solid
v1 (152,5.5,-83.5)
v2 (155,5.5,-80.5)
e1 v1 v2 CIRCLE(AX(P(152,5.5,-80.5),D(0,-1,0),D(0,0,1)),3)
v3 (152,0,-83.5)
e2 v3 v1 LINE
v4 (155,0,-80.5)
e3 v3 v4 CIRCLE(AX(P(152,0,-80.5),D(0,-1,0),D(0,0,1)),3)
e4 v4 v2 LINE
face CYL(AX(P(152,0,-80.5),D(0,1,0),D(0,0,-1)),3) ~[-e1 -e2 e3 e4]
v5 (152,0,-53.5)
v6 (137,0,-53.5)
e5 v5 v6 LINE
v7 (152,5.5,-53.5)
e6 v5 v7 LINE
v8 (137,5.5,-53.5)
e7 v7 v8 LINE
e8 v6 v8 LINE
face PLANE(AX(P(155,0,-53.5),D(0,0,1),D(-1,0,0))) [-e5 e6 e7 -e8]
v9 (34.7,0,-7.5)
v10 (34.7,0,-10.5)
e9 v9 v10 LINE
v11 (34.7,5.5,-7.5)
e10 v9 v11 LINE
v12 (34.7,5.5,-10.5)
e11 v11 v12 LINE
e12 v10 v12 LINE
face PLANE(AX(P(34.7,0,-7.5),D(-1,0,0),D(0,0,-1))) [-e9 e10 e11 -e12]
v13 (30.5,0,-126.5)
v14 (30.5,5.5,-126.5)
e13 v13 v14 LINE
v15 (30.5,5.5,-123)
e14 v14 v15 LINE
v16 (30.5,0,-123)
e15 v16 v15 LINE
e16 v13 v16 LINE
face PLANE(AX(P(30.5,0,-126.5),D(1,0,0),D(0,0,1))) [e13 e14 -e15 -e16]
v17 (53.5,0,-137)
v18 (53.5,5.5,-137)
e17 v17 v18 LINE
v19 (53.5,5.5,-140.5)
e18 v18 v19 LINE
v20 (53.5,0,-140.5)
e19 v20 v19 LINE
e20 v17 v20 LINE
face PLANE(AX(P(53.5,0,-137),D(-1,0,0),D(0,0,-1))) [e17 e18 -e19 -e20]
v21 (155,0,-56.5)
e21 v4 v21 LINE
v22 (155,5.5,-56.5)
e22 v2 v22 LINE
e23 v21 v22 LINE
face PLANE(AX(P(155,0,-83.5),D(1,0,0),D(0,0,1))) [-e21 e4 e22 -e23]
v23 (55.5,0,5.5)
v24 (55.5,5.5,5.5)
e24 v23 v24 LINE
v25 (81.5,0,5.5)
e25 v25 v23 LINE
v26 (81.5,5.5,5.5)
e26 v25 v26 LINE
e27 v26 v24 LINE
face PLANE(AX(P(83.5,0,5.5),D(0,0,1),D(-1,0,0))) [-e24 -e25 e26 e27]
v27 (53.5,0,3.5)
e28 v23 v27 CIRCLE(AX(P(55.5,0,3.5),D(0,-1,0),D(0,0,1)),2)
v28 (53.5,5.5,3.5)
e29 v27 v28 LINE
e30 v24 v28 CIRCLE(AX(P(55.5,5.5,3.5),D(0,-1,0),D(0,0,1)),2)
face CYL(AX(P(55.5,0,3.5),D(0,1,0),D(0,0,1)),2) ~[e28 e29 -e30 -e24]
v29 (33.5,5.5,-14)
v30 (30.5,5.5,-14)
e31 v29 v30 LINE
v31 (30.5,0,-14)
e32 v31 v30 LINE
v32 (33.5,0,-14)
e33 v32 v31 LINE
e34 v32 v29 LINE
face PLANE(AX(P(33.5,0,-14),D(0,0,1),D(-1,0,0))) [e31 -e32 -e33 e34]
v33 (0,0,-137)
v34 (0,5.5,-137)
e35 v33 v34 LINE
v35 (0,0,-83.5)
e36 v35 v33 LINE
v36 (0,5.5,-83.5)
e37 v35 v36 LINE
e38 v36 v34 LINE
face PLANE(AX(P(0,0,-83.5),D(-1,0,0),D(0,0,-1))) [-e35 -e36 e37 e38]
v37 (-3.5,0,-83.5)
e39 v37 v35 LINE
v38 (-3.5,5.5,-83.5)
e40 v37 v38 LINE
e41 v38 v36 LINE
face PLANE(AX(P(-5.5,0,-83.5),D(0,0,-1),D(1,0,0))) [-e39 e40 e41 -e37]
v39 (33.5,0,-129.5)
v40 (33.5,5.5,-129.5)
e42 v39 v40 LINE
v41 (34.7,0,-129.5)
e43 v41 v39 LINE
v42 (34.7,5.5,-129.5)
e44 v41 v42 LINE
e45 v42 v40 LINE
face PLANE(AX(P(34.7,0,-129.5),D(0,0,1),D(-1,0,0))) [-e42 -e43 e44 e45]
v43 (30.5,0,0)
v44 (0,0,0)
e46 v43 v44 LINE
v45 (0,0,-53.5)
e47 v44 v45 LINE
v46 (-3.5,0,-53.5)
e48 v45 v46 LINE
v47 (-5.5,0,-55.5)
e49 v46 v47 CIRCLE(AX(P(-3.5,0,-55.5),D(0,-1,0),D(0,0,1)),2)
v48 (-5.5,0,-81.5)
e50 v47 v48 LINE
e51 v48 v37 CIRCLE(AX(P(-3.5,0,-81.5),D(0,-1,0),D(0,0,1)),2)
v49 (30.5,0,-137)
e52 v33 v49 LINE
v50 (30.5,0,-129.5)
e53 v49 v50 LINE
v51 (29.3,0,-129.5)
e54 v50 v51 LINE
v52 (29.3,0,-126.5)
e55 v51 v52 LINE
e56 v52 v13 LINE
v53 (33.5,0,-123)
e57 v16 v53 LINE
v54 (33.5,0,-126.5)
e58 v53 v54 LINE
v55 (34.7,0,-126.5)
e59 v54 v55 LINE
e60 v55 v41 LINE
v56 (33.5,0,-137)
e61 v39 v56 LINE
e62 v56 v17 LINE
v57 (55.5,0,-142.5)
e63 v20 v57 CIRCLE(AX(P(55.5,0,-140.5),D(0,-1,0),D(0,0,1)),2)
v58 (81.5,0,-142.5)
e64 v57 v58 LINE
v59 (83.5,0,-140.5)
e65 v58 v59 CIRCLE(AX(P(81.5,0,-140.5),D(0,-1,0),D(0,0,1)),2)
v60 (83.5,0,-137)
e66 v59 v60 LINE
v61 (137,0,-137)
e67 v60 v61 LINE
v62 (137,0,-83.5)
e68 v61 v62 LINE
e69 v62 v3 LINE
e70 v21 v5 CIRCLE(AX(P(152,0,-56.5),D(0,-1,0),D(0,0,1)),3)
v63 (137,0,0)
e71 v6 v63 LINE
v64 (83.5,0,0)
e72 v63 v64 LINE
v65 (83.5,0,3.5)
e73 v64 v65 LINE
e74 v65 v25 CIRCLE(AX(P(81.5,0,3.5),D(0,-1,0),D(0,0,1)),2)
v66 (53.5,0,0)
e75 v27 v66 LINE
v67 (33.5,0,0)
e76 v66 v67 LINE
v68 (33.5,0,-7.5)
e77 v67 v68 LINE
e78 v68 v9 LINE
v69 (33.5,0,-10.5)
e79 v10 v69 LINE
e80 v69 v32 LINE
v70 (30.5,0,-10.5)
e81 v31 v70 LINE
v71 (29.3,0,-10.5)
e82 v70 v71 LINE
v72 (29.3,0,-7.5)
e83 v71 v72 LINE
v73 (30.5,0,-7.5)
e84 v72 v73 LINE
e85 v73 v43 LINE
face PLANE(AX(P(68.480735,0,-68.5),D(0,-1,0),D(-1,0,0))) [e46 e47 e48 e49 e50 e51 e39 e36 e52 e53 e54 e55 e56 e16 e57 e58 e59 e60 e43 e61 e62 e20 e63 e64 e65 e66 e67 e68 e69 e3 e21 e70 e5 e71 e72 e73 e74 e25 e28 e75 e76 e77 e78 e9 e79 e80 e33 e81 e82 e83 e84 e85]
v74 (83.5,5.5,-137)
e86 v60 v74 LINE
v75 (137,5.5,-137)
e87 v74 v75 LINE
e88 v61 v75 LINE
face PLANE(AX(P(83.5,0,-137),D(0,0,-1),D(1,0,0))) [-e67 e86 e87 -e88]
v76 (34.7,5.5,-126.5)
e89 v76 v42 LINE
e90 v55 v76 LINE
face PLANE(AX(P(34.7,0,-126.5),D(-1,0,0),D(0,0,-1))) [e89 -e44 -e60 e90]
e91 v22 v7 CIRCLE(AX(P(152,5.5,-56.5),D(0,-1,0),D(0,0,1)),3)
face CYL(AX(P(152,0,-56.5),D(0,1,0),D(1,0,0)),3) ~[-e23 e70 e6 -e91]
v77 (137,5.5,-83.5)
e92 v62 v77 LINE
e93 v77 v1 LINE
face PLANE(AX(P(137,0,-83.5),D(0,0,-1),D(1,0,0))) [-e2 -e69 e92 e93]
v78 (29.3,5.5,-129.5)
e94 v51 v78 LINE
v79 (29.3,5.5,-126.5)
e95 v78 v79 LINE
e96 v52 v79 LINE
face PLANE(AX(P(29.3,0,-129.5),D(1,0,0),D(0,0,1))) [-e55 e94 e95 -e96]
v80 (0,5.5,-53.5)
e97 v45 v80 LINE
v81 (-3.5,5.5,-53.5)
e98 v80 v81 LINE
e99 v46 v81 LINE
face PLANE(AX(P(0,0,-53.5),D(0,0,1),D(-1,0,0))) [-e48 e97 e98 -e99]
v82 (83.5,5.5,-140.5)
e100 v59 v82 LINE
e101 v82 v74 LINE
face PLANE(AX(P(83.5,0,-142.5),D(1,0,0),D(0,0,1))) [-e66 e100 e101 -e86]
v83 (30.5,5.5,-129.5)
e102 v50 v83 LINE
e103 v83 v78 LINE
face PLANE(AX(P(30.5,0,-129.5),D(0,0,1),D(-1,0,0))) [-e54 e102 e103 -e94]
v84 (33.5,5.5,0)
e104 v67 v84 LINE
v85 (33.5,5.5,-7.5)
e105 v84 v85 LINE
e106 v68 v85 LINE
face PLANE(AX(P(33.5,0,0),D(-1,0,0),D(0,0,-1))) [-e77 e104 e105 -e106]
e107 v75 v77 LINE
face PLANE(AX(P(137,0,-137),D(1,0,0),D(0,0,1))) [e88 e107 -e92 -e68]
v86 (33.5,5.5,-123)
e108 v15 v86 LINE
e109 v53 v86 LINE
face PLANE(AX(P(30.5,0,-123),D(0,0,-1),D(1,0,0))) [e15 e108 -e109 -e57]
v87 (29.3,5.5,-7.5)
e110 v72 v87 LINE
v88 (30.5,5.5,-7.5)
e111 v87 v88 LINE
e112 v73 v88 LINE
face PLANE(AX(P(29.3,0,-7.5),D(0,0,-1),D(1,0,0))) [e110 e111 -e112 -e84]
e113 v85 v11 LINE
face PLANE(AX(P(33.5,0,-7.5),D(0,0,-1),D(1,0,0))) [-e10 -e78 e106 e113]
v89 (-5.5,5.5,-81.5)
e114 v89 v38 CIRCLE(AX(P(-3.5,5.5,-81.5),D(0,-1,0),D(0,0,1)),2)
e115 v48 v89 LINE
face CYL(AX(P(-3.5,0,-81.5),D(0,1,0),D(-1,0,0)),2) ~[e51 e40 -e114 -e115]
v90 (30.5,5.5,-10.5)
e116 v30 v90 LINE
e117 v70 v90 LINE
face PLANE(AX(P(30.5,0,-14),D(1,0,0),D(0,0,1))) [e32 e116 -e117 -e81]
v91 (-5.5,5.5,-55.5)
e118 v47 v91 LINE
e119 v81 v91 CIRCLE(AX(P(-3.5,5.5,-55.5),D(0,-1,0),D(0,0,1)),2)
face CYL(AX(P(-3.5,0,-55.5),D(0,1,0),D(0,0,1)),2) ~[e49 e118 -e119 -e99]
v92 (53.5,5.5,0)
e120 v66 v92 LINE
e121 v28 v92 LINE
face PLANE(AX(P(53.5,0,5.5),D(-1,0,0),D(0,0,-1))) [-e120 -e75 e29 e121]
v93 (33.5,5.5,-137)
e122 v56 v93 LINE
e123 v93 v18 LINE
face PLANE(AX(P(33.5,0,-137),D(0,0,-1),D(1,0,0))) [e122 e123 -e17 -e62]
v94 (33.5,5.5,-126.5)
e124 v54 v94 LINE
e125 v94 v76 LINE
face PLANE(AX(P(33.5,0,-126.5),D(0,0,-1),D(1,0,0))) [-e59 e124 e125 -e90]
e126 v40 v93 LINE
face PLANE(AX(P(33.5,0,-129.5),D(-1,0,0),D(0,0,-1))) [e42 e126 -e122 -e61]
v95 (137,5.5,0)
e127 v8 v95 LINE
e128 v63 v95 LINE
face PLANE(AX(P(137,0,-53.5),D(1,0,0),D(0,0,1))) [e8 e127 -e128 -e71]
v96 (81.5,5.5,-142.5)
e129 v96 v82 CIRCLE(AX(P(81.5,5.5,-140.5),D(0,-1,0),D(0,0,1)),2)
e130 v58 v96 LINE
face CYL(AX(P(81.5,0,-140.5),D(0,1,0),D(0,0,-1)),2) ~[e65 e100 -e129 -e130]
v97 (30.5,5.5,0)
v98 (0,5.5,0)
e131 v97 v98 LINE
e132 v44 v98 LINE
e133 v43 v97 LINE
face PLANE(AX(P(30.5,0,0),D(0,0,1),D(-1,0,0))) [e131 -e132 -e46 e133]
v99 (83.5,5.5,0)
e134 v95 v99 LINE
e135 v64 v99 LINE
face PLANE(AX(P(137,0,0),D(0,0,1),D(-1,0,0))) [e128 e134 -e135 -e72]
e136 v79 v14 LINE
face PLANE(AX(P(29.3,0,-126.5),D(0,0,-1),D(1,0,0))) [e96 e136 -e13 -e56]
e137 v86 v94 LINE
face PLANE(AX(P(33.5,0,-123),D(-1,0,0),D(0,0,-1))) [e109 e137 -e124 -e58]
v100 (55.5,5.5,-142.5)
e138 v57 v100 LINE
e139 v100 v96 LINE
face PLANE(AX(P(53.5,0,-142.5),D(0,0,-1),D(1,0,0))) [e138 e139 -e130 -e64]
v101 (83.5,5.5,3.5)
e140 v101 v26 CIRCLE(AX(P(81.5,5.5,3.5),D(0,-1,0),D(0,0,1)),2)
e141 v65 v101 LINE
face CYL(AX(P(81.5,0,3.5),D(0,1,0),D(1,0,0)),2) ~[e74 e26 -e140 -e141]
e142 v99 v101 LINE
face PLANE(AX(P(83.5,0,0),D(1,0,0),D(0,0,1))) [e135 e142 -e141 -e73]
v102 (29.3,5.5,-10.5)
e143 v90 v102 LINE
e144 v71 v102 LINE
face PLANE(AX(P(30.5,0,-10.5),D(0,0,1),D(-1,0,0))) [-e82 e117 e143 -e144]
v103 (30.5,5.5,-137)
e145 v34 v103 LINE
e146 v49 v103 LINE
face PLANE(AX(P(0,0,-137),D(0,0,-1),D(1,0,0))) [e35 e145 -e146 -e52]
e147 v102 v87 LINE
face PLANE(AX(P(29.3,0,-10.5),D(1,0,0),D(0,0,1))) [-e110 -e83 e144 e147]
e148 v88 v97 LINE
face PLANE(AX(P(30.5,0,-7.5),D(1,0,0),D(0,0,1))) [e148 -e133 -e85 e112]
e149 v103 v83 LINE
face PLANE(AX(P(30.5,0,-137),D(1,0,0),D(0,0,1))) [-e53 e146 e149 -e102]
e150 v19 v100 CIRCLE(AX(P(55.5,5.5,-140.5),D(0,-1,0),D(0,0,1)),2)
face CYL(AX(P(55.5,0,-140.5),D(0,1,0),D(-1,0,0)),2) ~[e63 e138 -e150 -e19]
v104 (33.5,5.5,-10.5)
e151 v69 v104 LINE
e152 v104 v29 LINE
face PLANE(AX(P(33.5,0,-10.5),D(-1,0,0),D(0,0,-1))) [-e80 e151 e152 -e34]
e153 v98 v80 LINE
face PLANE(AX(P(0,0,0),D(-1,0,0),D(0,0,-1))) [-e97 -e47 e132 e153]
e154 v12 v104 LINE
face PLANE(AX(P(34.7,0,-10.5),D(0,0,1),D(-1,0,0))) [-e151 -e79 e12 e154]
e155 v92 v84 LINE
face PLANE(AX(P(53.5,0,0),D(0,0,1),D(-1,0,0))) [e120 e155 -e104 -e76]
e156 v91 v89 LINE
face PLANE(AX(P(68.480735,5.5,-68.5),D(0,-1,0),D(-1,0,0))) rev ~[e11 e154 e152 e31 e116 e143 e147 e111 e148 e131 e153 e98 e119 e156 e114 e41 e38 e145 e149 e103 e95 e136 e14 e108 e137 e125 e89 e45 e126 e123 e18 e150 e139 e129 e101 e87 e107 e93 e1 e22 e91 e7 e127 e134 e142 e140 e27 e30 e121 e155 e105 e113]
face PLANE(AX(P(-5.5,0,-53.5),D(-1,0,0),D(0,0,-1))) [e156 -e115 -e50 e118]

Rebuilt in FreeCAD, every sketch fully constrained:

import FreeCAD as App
import Part
import Sketcher
Q = App.Units.Quantity


def edges_at(feature, points):
    """Names of the edges that pass closest to the given points."""
    edges = feature.Shape.Edges
    near = lambda p: min(range(len(edges)), key=lambda i: edges[i].distToShape(Part.Vertex(*p))[0])
    return sorted({f"Edge{near(p) + 1}" for p in points})

doc = App.newDocument("Part")
params = doc.addObject("Spreadsheet::Sheet", "Params")
for row, (alias, value) in enumerate([
    ("sketch1_width", "3 mm"),
    ("sketch1_width2", "20 mm"),
    ("sketch1_width3", "30 mm"),
    ("sketch1_width4", "18 mm"),
    ("sketch1_width5", "5.5 mm"),
    ("pad1_length", "5.5 mm"),
    ("fillet_radius", "2 mm"),
    ("fillet2_radius", "3 mm"),
], start=1):
    params.set(f"A{row}", alias)
    params.set(f"B{row}", "=" + value)
    params.setAlias(f"B{row}", alias)

body = doc.addObject("PartDesign::Body", "Body")

sketch1 = body.newObject("Sketcher::SketchObject", "Sketch")
sketch1.AttachmentSupport = (doc.getObject("XZ_Plane"), [""])
sketch1.MapMode = "FlatFace"
sketch1.addGeometry([
    Part.LineSegment(App.Vector(0, -137, 0), App.Vector(0, -83.5, 0)),
    Part.LineSegment(App.Vector(0, -83.5, 0), App.Vector(-5.5, -83.5, 0)),
    Part.LineSegment(App.Vector(-5.5, -83.5, 0), App.Vector(-5.5, -53.5, 0)),
    Part.LineSegment(App.Vector(-5.5, -53.5, 0), App.Vector(0, -53.5, 0)),
    Part.LineSegment(App.Vector(0, -53.5, 0), App.Vector(0, 0, 0)),
    Part.LineSegment(App.Vector(0, 0, 0), App.Vector(30.5, 0, 0)),
    Part.LineSegment(App.Vector(30.5, 0, 0), App.Vector(30.5, -7.5, 0)),
    Part.LineSegment(App.Vector(30.5, -7.5, 0), App.Vector(29.3, -7.5, 0)),
    Part.LineSegment(App.Vector(29.3, -7.5, 0), App.Vector(29.3, -10.5, 0)),
    Part.LineSegment(App.Vector(29.3, -10.5, 0), App.Vector(30.5, -10.5, 0)),
    Part.LineSegment(App.Vector(30.5, -10.5, 0), App.Vector(30.5, -14, 0)),
    Part.LineSegment(App.Vector(30.5, -14, 0), App.Vector(33.5, -14, 0)),
    Part.LineSegment(App.Vector(33.5, -14, 0), App.Vector(33.5, -10.5, 0)),
    Part.LineSegment(App.Vector(33.5, -10.5, 0), App.Vector(34.7, -10.5, 0)),
    Part.LineSegment(App.Vector(34.7, -10.5, 0), App.Vector(34.7, -7.5, 0)),
    Part.LineSegment(App.Vector(34.7, -7.5, 0), App.Vector(33.5, -7.5, 0)),
    Part.LineSegment(App.Vector(33.5, -7.5, 0), App.Vector(33.5, 0, 0)),
    Part.LineSegment(App.Vector(33.5, 0, 0), App.Vector(53.5, 0, 0)),
    Part.LineSegment(App.Vector(53.5, 0, 0), App.Vector(53.5, 5.5, 0)),
    Part.LineSegment(App.Vector(53.5, 5.5, 0), App.Vector(83.5, 5.5, 0)),
    Part.LineSegment(App.Vector(83.5, 5.5, 0), App.Vector(83.5, 0, 0)),
    Part.LineSegment(App.Vector(83.5, 0, 0), App.Vector(137, 0, 0)),
    Part.LineSegment(App.Vector(137, 0, 0), App.Vector(137, -53.5, 0)),
    Part.LineSegment(App.Vector(137, -53.5, 0), App.Vector(155, -53.5, 0)),
    Part.LineSegment(App.Vector(155, -53.5, 0), App.Vector(155, -83.5, 0)),
    Part.LineSegment(App.Vector(155, -83.5, 0), App.Vector(137, -83.5, 0)),
    Part.LineSegment(App.Vector(137, -83.5, 0), App.Vector(137, -137, 0)),
    Part.LineSegment(App.Vector(137, -137, 0), App.Vector(83.5, -137, 0)),
    Part.LineSegment(App.Vector(83.5, -137, 0), App.Vector(83.5, -142.5, 0)),
    Part.LineSegment(App.Vector(83.5, -142.5, 0), App.Vector(53.5, -142.5, 0)),
    Part.LineSegment(App.Vector(53.5, -142.5, 0), App.Vector(53.5, -137, 0)),
    Part.LineSegment(App.Vector(53.5, -137, 0), App.Vector(33.5, -137, 0)),
    Part.LineSegment(App.Vector(33.5, -137, 0), App.Vector(33.5, -129.5, 0)),
    Part.LineSegment(App.Vector(33.5, -129.5, 0), App.Vector(34.7, -129.5, 0)),
    Part.LineSegment(App.Vector(34.7, -129.5, 0), App.Vector(34.7, -126.5, 0)),
    Part.LineSegment(App.Vector(34.7, -126.5, 0), App.Vector(33.5, -126.5, 0)),
    Part.LineSegment(App.Vector(33.5, -126.5, 0), App.Vector(33.5, -123, 0)),
    Part.LineSegment(App.Vector(33.5, -123, 0), App.Vector(30.5, -123, 0)),
    Part.LineSegment(App.Vector(30.5, -123, 0), App.Vector(30.5, -126.5, 0)),
    Part.LineSegment(App.Vector(30.5, -126.5, 0), App.Vector(29.3, -126.5, 0)),
    Part.LineSegment(App.Vector(29.3, -126.5, 0), App.Vector(29.3, -129.5, 0)),
    Part.LineSegment(App.Vector(29.3, -129.5, 0), App.Vector(30.5, -129.5, 0)),
    Part.LineSegment(App.Vector(30.5, -129.5, 0), App.Vector(30.5, -137, 0)),
    Part.LineSegment(App.Vector(30.5, -137, 0), App.Vector(0, -137, 0)),
], False)
sketch1.addConstraint([
    Sketcher.Constraint("Coincident", 0, 2, 1, 1),
    Sketcher.Constraint("Coincident", 1, 2, 2, 1),
    Sketcher.Constraint("Coincident", 2, 2, 3, 1),
    Sketcher.Constraint("Coincident", 3, 2, 4, 1),
    Sketcher.Constraint("Coincident", 4, 2, 5, 1),
    Sketcher.Constraint("Coincident", 5, 2, 6, 1),
    Sketcher.Constraint("Coincident", 6, 2, 7, 1),
    Sketcher.Constraint("Coincident", 7, 2, 8, 1),
    Sketcher.Constraint("Coincident", 8, 2, 9, 1),
    Sketcher.Constraint("Coincident", 9, 2, 10, 1),
    Sketcher.Constraint("Coincident", 10, 2, 11, 1),
    Sketcher.Constraint("Coincident", 11, 2, 12, 1),
    Sketcher.Constraint("Coincident", 12, 2, 13, 1),
    Sketcher.Constraint("Coincident", 13, 2, 14, 1),
    Sketcher.Constraint("Coincident", 14, 2, 15, 1),
    Sketcher.Constraint("Coincident", 15, 2, 16, 1),
    Sketcher.Constraint("Coincident", 16, 2, 17, 1),
    Sketcher.Constraint("Coincident", 17, 2, 18, 1),
    Sketcher.Constraint("Coincident", 18, 2, 19, 1),
    Sketcher.Constraint("Coincident", 19, 2, 20, 1),
    Sketcher.Constraint("Coincident", 20, 2, 21, 1),
    Sketcher.Constraint("Coincident", 21, 2, 22, 1),
    Sketcher.Constraint("Coincident", 22, 2, 23, 1),
    Sketcher.Constraint("Coincident", 23, 2, 24, 1),
    Sketcher.Constraint("Coincident", 24, 2, 25, 1),
    Sketcher.Constraint("Coincident", 25, 2, 26, 1),
    Sketcher.Constraint("Coincident", 26, 2, 27, 1),
    Sketcher.Constraint("Coincident", 27, 2, 28, 1),
    Sketcher.Constraint("Coincident", 28, 2, 29, 1),
    Sketcher.Constraint("Coincident", 29, 2, 30, 1),
    Sketcher.Constraint("Coincident", 30, 2, 31, 1),
    Sketcher.Constraint("Coincident", 31, 2, 32, 1),
    Sketcher.Constraint("Coincident", 32, 2, 33, 1),
    Sketcher.Constraint("Coincident", 33, 2, 34, 1),
    Sketcher.Constraint("Coincident", 34, 2, 35, 1),
    Sketcher.Constraint("Coincident", 35, 2, 36, 1),
    Sketcher.Constraint("Coincident", 36, 2, 37, 1),
    Sketcher.Constraint("Coincident", 37, 2, 38, 1),
    Sketcher.Constraint("Coincident", 38, 2, 39, 1),
    Sketcher.Constraint("Coincident", 39, 2, 40, 1),
    Sketcher.Constraint("Coincident", 40, 2, 41, 1),
    Sketcher.Constraint("Coincident", 41, 2, 42, 1),
    Sketcher.Constraint("Coincident", 42, 2, 43, 1),
    Sketcher.Constraint("Coincident", 43, 2, 0, 1),
    Sketcher.Constraint("Vertical", 0),
    Sketcher.Constraint("Horizontal", 1),
    Sketcher.Constraint("Vertical", 2),
    Sketcher.Constraint("Horizontal", 3),
    Sketcher.Constraint("Vertical", 4),
    Sketcher.Constraint("Horizontal", 5),
    Sketcher.Constraint("Vertical", 6),
    Sketcher.Constraint("Horizontal", 7),
    Sketcher.Constraint("Vertical", 8),
    Sketcher.Constraint("Horizontal", 9),
    Sketcher.Constraint("Vertical", 10),
    Sketcher.Constraint("Horizontal", 11),
    Sketcher.Constraint("Vertical", 12),
    Sketcher.Constraint("Horizontal", 13),
    Sketcher.Constraint("Vertical", 14),
    Sketcher.Constraint("Horizontal", 15),
    Sketcher.Constraint("Vertical", 16),
    Sketcher.Constraint("Horizontal", 17),
    Sketcher.Constraint("Vertical", 18),
    Sketcher.Constraint("Horizontal", 19),
    Sketcher.Constraint("Vertical", 20),
    Sketcher.Constraint("Horizontal", 21),
    Sketcher.Constraint("Vertical", 22),
    Sketcher.Constraint("Horizontal", 23),
    Sketcher.Constraint("Vertical", 24),
    Sketcher.Constraint("Horizontal", 25),
    Sketcher.Constraint("Vertical", 26),
    Sketcher.Constraint("Horizontal", 27),
    Sketcher.Constraint("Vertical", 28),
    Sketcher.Constraint("Horizontal", 29),
    Sketcher.Constraint("Vertical", 30),
    Sketcher.Constraint("Horizontal", 31),
    Sketcher.Constraint("Vertical", 32),
    Sketcher.Constraint("Horizontal", 33),
    Sketcher.Constraint("Vertical", 34),
    Sketcher.Constraint("Horizontal", 35),
    Sketcher.Constraint("Vertical", 36),
    Sketcher.Constraint("Horizontal", 37),
    Sketcher.Constraint("Vertical", 38),
    Sketcher.Constraint("Horizontal", 39),
    Sketcher.Constraint("Vertical", 40),
    Sketcher.Constraint("Horizontal", 41),
    Sketcher.Constraint("Vertical", 42),
    Sketcher.Constraint("Horizontal", 43),
    Sketcher.Constraint("Coincident", 4, 2, -1, 1),
    Sketcher.Constraint("PointOnObject", 0, 2, -2),
    Sketcher.Constraint("PointOnObject", 16, 2, -1),
    Sketcher.Constraint("PointOnObject", 20, 2, -1),
    Sketcher.Constraint("Horizontal", 9, 2, 12, 2),
    Sketcher.Constraint("Horizontal", 7, 2, 14, 2),
    Sketcher.Constraint("Horizontal", 3, 2, 22, 2),
    Sketcher.Constraint("Horizontal", 1, 2, 24, 2),
    Sketcher.Constraint("Horizontal", 27, 2, 30, 2),
    Sketcher.Constraint("Horizontal", 35, 2, 38, 2),
    Sketcher.Constraint("Horizontal", 33, 2, 40, 2),
    Sketcher.Constraint("Horizontal", 31, 2, 42, 2),
    Sketcher.Constraint("Vertical", 6, 2, 9, 2),
    Sketcher.Constraint("Vertical", 12, 2, 15, 2),
    Sketcher.Constraint("Vertical", 22, 2, 25, 2),
    Sketcher.Constraint("Vertical", 20, 2, 27, 2),
    Sketcher.Constraint("Vertical", 18, 2, 29, 2),
    Sketcher.Constraint("Vertical", 16, 2, 31, 2),
    Sketcher.Constraint("Vertical", 14, 2, 33, 2),
    Sketcher.Constraint("Vertical", 32, 2, 35, 2),
    Sketcher.Constraint("Vertical", 10, 2, 37, 2),
    Sketcher.Constraint("Vertical", 8, 2, 39, 2),
    Sketcher.Constraint("Vertical", 38, 2, 41, 2),
    Sketcher.Constraint("Equal", 9, 13),
    Sketcher.Constraint("Equal", 27, 0),
    Sketcher.Constraint("Equal", 29, 2),
    Sketcher.Constraint("Equal", 0, 4),
    Sketcher.Constraint("Equal", 37, 8),
    Sketcher.Constraint("Equal", 3, 18),
    Sketcher.Constraint("Equal", 20, 28),
    Sketcher.Constraint("Equal", 16, 32),
    Sketcher.Constraint("Equal", 14, 34),
    Sketcher.Constraint("Equal", 12, 36),
    Sketcher.Constraint("DistanceX", 11, 1, 11, 2, Q("3 mm")),
    Sketcher.Constraint("DistanceX", 17, 1, 17, 2, Q("20 mm")),
    Sketcher.Constraint("DistanceX", 19, 1, 19, 2, Q("30 mm")),
    Sketcher.Constraint("DistanceX", 23, 1, 23, 2, Q("18 mm")),
    Sketcher.Constraint("DistanceX", 1, 2, 1, 1, Q("5.5 mm")),
    Sketcher.Constraint("DistanceX", 5, 1, 5, 2, Q("30.5 mm")),
    Sketcher.Constraint("DistanceX", 7, 2, 7, 1, Q("1.2 mm")),
    Sketcher.Constraint("DistanceX", 21, 1, 21, 2, Q("53.5 mm")),
    Sketcher.Constraint("DistanceY", 6, 2, 6, 1, Q("7.5 mm")),
    Sketcher.Constraint("DistanceY", 10, 2, 10, 1, Q("3.5 mm")),
])
sketch1.setExpression("Constraints[121]", "Params.sketch1_width")
sketch1.setExpression("Constraints[122]", "Params.sketch1_width2")
sketch1.setExpression("Constraints[123]", "Params.sketch1_width3")
sketch1.setExpression("Constraints[124]", "Params.sketch1_width4")
sketch1.setExpression("Constraints[125]", "Params.sketch1_width5")
pad1 = body.newObject("PartDesign::Pad", "Pad")
pad1.Profile = sketch1
pad1.setExpression("Length", "Params.pad1_length")
pad1.Reversed = True
doc.recompute()

fillet = body.newObject("PartDesign::Fillet", "Fillet")
fillet.Base = (pad1, edges_at(pad1, [
    (-5.5, 2.75, -53.5),
    (-5.5, 2.75, -83.5),
    (53.5, 2.75, -142.5),
    (83.5, 2.75, -142.5),
    (83.5, 2.75, 5.5),
    (53.5, 2.75, 5.5),
]))
fillet.setExpression("Radius", "Params.fillet_radius")
doc.recompute()

fillet2 = body.newObject("PartDesign::Fillet", "Fillet001")
fillet2.Base = (fillet, edges_at(fillet, [(155, 2.75, -83.5), (155, 2.75, -53.5)]))
fillet2.setExpression("Radius", "Params.fillet2_radius")

doc.recompute()
